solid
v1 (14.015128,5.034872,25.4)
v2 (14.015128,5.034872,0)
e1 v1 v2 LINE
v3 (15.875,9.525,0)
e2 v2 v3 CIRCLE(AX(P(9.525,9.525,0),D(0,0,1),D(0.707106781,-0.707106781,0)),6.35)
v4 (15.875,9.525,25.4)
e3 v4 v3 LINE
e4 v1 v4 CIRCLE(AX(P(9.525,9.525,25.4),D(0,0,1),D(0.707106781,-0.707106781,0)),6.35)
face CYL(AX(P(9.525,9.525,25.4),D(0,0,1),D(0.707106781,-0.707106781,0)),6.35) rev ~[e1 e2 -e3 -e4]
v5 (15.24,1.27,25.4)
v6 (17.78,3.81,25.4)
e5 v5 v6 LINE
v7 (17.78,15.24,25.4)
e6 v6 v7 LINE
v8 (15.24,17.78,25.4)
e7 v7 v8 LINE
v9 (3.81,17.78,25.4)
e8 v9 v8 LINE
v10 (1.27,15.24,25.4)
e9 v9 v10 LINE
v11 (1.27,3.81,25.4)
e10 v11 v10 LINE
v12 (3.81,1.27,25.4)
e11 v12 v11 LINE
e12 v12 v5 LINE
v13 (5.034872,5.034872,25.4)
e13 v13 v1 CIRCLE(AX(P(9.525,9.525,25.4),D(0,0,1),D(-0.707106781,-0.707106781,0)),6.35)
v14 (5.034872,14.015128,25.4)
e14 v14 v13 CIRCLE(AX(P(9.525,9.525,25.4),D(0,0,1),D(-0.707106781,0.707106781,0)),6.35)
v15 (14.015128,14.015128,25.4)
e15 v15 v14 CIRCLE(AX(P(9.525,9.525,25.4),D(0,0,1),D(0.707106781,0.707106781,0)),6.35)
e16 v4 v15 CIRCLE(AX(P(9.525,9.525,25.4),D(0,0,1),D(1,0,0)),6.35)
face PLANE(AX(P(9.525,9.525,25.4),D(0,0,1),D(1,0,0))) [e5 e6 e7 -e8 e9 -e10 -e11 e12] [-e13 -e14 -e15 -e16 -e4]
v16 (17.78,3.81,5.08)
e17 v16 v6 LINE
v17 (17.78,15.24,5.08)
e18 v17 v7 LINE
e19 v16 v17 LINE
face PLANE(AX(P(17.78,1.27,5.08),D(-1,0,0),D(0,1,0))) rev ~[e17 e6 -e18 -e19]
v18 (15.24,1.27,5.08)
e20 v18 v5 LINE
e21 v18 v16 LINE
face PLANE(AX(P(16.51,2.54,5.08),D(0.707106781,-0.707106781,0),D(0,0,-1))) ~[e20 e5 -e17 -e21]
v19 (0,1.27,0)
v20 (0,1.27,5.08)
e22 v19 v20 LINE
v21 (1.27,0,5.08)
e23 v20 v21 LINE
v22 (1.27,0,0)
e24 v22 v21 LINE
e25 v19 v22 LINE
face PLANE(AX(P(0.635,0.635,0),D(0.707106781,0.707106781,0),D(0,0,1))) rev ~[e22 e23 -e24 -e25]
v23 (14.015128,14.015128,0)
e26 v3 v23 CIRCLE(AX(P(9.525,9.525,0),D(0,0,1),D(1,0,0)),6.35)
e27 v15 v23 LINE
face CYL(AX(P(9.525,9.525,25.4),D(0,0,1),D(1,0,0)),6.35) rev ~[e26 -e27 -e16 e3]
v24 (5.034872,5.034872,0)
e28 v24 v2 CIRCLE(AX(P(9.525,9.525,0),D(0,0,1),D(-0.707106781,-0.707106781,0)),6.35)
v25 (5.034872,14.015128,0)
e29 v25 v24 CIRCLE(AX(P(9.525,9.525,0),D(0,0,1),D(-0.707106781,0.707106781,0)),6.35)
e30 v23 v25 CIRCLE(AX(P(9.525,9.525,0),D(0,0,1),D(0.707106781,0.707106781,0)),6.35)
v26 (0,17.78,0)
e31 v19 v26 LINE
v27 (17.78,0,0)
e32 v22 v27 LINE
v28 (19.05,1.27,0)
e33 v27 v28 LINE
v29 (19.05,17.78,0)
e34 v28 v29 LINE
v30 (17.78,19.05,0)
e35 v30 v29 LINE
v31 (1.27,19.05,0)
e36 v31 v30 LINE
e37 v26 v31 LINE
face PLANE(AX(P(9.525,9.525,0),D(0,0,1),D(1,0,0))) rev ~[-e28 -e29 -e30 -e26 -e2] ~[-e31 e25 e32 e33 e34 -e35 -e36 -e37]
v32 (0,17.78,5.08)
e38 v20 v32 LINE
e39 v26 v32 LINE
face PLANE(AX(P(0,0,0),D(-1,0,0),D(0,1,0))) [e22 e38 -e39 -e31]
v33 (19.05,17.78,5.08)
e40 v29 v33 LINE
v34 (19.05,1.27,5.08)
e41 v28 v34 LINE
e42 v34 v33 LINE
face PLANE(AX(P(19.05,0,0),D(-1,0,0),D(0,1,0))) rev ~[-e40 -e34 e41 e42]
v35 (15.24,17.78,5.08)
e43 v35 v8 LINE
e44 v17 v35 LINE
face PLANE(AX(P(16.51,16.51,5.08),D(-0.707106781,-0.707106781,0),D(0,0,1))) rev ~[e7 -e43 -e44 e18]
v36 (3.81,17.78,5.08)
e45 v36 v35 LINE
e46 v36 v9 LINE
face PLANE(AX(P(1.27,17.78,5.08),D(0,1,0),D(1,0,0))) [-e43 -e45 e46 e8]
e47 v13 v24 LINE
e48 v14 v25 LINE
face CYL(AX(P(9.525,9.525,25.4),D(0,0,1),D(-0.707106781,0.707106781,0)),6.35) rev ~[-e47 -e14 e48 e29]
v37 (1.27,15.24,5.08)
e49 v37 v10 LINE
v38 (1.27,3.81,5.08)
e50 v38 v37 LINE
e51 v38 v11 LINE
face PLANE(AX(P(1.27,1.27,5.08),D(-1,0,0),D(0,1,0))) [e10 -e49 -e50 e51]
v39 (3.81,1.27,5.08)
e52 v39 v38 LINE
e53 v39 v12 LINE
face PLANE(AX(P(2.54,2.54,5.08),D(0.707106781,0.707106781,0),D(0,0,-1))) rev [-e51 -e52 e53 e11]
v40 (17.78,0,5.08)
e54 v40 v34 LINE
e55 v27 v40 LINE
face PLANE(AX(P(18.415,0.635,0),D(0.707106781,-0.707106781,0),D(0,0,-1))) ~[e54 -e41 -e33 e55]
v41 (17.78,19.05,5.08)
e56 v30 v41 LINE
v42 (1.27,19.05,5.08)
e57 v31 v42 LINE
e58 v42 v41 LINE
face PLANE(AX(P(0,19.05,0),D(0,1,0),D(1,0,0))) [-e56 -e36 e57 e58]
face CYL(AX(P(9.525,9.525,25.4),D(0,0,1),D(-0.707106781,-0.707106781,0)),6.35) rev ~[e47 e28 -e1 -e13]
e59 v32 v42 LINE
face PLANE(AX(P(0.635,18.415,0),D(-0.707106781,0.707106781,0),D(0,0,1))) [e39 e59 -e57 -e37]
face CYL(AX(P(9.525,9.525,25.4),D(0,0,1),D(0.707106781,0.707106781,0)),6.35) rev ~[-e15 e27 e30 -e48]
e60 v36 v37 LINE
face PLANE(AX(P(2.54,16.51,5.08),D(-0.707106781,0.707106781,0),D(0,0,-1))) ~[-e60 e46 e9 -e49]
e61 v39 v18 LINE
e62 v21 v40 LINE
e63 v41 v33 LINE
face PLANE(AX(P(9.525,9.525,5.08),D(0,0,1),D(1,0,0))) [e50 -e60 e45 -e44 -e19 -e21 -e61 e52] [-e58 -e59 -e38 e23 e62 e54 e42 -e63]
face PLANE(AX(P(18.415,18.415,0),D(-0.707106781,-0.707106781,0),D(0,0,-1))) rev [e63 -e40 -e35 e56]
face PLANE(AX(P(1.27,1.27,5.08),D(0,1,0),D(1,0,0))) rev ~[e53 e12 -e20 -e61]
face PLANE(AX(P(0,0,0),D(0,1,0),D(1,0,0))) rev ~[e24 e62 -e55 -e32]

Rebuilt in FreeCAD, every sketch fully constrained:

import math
import FreeCAD as App
import Part
import Sketcher
from FreeCAD import Vector
Q = App.Units.Quantity


def edges_at(feature, points):
    """Names of the edges that pass closest to the given points."""
    edges = feature.Shape.Edges
    near = lambda p: min(range(len(edges)), key=lambda i: edges[i].distToShape(Part.Vertex(*p))[0])
    return sorted({f"Edge{near(p) + 1}" for p in points})


def add_polygon(sketch, points):
    """Adds a closed chain of lines whose ends are joined by coincident constraints."""
    first, n = sketch.GeometryCount, len(points)
    for a, b in zip(points, points[1:] + points[:1]):
        sketch.addGeometry(Part.LineSegment(App.Vector(*a, 0), App.Vector(*b, 0)), False)
    for i in range(n):
        sketch.addConstraint(Sketcher.Constraint("Coincident", first + i, 2, first + (i + 1) % n, 1))

doc = App.newDocument("Part")
body = doc.addObject("PartDesign::Body", "Body")

# Sketch on XY plane
sketch1 = body.newObject("Sketcher::SketchObject", "Sketch")
sketch1.AttachmentSupport = (doc.getObject("XY_Plane"), [""])
sketch1.MapMode = "FlatFace"
add_polygon(sketch1, [(0, 19), (0, 0), (19, 0), (19, 19)])  # lines 0-3
sketch1.addConstraint(Sketcher.Constraint("Vertical", 0))
sketch1.addConstraint(Sketcher.Constraint("Horizontal", 1))
sketch1.addConstraint(Sketcher.Constraint("Vertical", 2))
sketch1.addConstraint(Sketcher.Constraint("Horizontal", 3))
sketch1.addConstraint(Sketcher.Constraint("Coincident", 0, 2, -1, 1))
sketch1.addConstraint(Sketcher.Constraint("Equal", 3, 0))
sketch1.addConstraint(Sketcher.Constraint("DistanceX", 1, 1, 1, 2, Q("0.75 in")))
pad1 = body.newObject("PartDesign::Pad", "Pad")
pad1.Profile = sketch1
pad1.Length = Q("0.2 in")

# Sketch on XY plane
sketch2 = body.newObject("Sketcher::SketchObject", "Sketch001")
sketch2.AttachmentSupport = (doc.getObject("XY_Plane"), [""])
sketch2.MapMode = "FlatFace"
sketch2.AttachmentOffset = App.Placement(Vector(0, 0, 0.2 * 25.4), App.Rotation())
add_polygon(sketch2, [(1, 18), (1, 1), (18, 1), (18, 18)])  # lines 0-3
sketch2.addConstraint(Sketcher.Constraint("Vertical", 0))
sketch2.addConstraint(Sketcher.Constraint("Horizontal", 1))
sketch2.addConstraint(Sketcher.Constraint("Vertical", 2))
sketch2.addConstraint(Sketcher.Constraint("Horizontal", 3))
sketch2.addConstraint(Sketcher.Constraint("Equal", 3, 0))
sketch2.addConstraint(Sketcher.Constraint("DistanceX", 1, 1, 1, 2, Q("0.65 in")))
sketch2.addConstraint(Sketcher.Constraint("DistanceX", -1, 1, 1, 2, Q("0.7 in")))
sketch2.addConstraint(Sketcher.Constraint("DistanceY", -1, 1, 2, 2, Q("0.7 in")))
pad2 = body.newObject("PartDesign::Pad", "Pad001")
pad2.Profile = sketch2
pad2.Length = Q("0.8 in")

# Sketch on XY plane
sketch3 = body.newObject("Sketcher::SketchObject", "Sketch002")
sketch3.AttachmentSupport = (doc.getObject("XY_Plane"), [""])
sketch3.MapMode = "FlatFace"
sketch3.AttachmentOffset = App.Placement(Vector(0, 0, 1 * 25.4), App.Rotation())
sketch3.addGeometry(Part.ArcOfCircle(Part.Circle(Vector(9.5, 9.5, 0), Vector(0, 0, 1), 6.3), math.radians(-45), math.radians(0)), False)
sketch3.addGeometry(Part.ArcOfCircle(Part.Circle(Vector(9.5, 9.5, 0), Vector(0, 0, 1), 6.3), math.radians(0), math.radians(45)), False)
sketch3.addGeometry(Part.ArcOfCircle(Part.Circle(Vector(9.5, 9.5, 0), Vector(0, 0, 1), 6.3), math.radians(45), math.radians(135)), False)
sketch3.addGeometry(Part.ArcOfCircle(Part.Circle(Vector(9.5, 9.5, 0), Vector(0, 0, 1), 6.3), math.radians(135), math.radians(225)), False)
sketch3.addGeometry(Part.ArcOfCircle(Part.Circle(Vector(9.5, 9.5, 0), Vector(0, 0, 1), 6.3), math.radians(-135), math.radians(-45)), False)
sketch3.addConstraint(Sketcher.Constraint("Tangent", 0, 2, 1, 1))
sketch3.addConstraint(Sketcher.Constraint("Tangent", 1, 2, 2, 1))
sketch3.addConstraint(Sketcher.Constraint("Tangent", 2, 2, 3, 1))
sketch3.addConstraint(Sketcher.Constraint("Tangent", 3, 2, 4, 1))
sketch3.addConstraint(Sketcher.Constraint("Tangent", 4, 2, 0, 1))
sketch3.addConstraint(Sketcher.Constraint("Coincident", 2, 3, 0, 3))
sketch3.addConstraint(Sketcher.Constraint("Horizontal", 4, 3, 0, 2))
sketch3.addConstraint(Sketcher.Constraint("Horizontal", 1, 2, 2, 2))
sketch3.addConstraint(Sketcher.Constraint("Horizontal", 3, 2, 4, 2))
sketch3.addConstraint(Sketcher.Constraint("Vertical", 2, 2, 3, 2))
sketch3.addConstraint(Sketcher.Constraint("Radius", 0, Q("0.25 in")))
sketch3.addConstraint(Sketcher.Constraint("DistanceX", -1, 1, 0, 3, Q("0.375 in")))
sketch3.addConstraint(Sketcher.Constraint("DistanceY", -1, 1, 0, 3, Q("0.375 in")))
sketch3.addConstraint(Sketcher.Constraint("DistanceX", -1, 1, 1, 2, 14.015128))
pocket1 = body.newObject("PartDesign::Pocket", "Pocket")
pocket1.Profile = sketch3
pocket1.Length = Q("1 in")
doc.recompute()

chamfer = body.newObject("PartDesign::Chamfer", "Chamfer")
chamfer.Base = (pocket1, edges_at(pocket1, [
    (17.78, 17.78, 15.24),
    (1.27, 17.78, 15.24),
    (1.27, 1.27, 15.24),
    (17.78, 1.27, 15.24),
]))
chamfer.Size = Q("0.1 in")
doc.recompute()

chamfer2 = body.newObject("PartDesign::Chamfer", "Chamfer001")
chamfer2.Base = (chamfer, edges_at(chamfer, [
    (0, 0, 2.54),
    (0, 19.05, 2.54),
    (19.05, 19.05, 2.54),
    (19.05, 0, 2.54),
]))
chamfer2.Size = Q("0.05 in")

doc.recompute()
